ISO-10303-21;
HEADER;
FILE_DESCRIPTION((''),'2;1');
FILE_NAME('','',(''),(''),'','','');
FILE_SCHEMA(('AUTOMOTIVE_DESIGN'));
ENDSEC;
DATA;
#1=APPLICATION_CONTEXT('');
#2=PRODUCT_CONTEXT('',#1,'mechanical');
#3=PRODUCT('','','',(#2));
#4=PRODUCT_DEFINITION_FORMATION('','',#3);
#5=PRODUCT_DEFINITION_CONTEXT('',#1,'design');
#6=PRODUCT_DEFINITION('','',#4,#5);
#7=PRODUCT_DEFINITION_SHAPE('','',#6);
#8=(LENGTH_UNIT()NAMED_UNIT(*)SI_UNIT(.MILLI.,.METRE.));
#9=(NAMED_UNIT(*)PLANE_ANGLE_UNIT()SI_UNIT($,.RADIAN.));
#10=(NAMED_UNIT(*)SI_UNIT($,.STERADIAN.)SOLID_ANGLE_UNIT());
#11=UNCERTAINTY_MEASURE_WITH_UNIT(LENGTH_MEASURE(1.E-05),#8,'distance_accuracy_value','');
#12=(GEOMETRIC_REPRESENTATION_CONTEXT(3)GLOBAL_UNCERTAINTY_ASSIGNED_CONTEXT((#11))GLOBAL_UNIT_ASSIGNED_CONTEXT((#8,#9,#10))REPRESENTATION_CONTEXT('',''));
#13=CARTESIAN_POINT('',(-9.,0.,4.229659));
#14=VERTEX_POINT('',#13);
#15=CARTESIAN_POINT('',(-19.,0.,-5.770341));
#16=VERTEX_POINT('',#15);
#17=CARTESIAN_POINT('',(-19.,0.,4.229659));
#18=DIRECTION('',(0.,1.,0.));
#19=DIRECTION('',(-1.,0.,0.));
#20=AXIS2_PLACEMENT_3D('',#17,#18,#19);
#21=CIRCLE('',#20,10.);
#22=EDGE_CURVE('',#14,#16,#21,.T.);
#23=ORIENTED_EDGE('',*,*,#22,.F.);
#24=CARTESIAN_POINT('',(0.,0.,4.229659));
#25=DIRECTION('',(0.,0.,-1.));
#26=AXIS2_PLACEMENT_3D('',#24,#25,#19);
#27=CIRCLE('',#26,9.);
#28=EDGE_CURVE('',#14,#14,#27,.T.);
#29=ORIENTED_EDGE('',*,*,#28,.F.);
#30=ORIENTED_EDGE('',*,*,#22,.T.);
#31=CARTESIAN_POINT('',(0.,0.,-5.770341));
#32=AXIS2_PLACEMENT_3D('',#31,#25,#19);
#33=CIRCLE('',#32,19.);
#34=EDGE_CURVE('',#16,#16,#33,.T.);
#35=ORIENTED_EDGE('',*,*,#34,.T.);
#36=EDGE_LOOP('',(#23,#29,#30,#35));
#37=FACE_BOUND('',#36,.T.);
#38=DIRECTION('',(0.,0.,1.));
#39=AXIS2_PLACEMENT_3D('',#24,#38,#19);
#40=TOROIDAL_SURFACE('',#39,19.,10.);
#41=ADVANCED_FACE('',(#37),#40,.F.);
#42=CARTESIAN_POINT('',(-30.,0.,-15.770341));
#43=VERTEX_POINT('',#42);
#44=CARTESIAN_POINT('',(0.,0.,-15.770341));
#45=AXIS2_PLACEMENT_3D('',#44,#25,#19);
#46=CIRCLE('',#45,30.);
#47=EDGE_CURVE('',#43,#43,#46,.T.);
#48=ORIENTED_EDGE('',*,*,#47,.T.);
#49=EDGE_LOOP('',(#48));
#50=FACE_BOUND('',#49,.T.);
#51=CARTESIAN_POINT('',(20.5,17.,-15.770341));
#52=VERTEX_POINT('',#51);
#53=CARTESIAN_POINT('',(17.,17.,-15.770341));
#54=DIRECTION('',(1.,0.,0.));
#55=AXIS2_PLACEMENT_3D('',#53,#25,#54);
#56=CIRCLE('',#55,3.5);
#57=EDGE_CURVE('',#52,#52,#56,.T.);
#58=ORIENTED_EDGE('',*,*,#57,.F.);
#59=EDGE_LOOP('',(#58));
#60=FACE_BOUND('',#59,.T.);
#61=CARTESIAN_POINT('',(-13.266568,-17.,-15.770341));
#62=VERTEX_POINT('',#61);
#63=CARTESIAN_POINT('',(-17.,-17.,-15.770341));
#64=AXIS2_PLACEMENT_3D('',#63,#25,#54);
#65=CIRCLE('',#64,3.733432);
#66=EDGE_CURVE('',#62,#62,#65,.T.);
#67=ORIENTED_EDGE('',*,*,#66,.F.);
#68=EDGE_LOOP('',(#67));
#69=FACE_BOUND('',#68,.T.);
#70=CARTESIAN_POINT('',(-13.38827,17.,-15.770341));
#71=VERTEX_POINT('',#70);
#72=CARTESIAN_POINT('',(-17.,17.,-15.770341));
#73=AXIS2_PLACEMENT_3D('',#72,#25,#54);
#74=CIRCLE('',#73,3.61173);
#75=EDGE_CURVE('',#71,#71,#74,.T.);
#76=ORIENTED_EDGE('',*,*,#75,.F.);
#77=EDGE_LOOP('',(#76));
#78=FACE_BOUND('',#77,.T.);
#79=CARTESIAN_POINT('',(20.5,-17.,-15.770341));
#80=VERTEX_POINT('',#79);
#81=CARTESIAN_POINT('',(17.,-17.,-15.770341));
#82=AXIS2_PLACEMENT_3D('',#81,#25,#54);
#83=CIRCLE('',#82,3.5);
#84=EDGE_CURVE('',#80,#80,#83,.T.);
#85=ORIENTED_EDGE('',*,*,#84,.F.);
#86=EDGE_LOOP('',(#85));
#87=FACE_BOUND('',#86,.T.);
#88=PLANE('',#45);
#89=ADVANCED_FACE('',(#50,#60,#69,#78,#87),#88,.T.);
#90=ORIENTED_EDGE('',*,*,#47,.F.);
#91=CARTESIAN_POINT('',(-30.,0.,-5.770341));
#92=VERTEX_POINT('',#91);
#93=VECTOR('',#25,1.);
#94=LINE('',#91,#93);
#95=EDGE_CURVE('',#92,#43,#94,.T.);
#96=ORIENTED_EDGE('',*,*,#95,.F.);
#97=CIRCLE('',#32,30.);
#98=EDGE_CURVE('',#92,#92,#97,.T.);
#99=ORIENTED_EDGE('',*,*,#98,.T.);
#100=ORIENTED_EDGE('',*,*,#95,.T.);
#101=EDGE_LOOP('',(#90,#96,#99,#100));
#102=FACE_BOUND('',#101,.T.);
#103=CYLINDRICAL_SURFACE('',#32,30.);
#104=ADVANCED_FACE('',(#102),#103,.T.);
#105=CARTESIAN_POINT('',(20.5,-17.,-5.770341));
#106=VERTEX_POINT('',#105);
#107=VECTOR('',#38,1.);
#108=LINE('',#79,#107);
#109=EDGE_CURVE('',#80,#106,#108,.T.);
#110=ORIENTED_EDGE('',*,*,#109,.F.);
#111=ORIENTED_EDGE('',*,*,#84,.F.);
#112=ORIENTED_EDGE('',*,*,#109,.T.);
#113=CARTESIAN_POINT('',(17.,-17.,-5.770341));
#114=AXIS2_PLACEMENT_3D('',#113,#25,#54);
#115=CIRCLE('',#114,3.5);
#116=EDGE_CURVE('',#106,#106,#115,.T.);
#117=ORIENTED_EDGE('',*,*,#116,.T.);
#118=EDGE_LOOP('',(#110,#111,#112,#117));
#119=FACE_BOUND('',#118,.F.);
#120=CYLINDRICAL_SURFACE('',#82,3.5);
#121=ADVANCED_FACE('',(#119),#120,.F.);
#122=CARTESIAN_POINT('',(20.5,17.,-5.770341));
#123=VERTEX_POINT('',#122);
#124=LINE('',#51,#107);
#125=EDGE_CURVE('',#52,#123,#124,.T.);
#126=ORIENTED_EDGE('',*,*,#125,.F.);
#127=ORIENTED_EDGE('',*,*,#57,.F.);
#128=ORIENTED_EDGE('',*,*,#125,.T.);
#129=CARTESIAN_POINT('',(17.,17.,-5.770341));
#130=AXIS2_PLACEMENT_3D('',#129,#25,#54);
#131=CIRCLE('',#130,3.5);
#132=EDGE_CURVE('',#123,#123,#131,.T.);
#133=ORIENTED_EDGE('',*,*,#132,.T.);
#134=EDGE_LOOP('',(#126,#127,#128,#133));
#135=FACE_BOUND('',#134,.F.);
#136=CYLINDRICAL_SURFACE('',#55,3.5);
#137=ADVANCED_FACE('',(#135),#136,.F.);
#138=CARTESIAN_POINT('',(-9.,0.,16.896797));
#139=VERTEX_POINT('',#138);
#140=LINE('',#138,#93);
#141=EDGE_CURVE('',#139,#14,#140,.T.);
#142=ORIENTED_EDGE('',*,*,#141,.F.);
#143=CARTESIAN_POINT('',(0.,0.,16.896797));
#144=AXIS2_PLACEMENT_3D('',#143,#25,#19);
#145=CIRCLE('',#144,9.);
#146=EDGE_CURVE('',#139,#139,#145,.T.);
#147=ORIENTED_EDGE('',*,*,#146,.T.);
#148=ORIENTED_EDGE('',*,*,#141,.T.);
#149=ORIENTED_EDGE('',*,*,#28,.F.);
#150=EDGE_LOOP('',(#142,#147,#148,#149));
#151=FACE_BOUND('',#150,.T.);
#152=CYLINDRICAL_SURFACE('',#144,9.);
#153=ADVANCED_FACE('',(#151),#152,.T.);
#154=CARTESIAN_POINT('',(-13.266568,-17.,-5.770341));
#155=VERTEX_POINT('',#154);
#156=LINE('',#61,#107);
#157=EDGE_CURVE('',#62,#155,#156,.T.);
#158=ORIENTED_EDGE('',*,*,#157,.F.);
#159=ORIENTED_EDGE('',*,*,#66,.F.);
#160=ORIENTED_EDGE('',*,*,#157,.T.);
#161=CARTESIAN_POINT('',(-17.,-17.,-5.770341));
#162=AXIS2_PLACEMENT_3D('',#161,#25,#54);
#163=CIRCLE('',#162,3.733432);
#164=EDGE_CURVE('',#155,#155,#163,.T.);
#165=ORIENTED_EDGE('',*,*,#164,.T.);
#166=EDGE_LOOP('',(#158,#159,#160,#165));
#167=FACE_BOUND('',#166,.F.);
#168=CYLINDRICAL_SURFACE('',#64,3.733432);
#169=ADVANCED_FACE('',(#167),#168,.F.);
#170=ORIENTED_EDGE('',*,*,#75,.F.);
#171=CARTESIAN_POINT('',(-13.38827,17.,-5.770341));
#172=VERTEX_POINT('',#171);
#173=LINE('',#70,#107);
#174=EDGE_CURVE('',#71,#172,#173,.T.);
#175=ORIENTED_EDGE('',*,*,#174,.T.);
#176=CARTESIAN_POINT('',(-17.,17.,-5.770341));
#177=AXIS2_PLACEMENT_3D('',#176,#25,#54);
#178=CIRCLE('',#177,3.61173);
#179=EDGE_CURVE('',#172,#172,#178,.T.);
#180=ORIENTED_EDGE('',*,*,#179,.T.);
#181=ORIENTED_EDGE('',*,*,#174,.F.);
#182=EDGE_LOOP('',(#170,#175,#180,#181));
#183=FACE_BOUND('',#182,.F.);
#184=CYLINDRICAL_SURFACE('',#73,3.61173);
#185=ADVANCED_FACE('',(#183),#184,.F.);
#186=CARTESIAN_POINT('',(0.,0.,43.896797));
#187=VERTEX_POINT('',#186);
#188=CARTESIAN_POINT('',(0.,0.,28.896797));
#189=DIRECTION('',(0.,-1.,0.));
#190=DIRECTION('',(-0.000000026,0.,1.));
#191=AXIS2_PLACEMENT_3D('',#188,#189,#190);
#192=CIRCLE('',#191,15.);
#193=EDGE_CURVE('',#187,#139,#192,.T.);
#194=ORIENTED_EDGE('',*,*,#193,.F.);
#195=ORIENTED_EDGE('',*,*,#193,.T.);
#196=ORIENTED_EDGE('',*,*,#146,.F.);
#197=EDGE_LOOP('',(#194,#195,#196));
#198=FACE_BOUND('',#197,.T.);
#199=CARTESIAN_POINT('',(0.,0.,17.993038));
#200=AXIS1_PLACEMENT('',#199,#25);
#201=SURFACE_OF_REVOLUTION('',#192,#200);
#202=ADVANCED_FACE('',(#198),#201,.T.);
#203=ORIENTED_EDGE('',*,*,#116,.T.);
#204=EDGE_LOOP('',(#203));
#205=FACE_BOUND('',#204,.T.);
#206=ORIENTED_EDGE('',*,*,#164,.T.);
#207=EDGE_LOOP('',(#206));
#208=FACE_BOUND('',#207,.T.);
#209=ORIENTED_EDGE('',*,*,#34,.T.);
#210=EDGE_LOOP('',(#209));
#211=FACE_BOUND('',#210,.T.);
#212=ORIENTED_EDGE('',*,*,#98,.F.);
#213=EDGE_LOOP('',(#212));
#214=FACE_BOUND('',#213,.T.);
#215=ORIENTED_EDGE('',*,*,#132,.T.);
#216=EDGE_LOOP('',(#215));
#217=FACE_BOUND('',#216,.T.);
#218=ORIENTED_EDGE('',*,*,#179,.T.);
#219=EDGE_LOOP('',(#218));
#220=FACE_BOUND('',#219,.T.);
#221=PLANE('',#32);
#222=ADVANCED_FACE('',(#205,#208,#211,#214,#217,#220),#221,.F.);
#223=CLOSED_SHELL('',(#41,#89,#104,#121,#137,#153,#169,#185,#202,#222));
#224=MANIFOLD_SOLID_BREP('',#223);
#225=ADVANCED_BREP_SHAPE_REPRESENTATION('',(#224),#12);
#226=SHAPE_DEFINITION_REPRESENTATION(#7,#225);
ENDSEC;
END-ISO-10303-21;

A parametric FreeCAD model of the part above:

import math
import FreeCAD as App
import Part
import Sketcher

V = App.Vector
Q = App.Units.Quantity


def edges_at(feature, points):
    """Names of the edges that pass closest to the given points."""
    edges = feature.Shape.Edges
    near = lambda p: min(range(len(edges)), key=lambda i: edges[i].distToShape(Part.Vertex(*p))[0])
    return sorted({f"Edge{near(p) + 1}" for p in points})

doc = App.newDocument("Part")
body = doc.addObject("PartDesign::Body", "Body")

# Sketch on XZ plane
sketch1 = body.newObject("Sketcher::SketchObject", "Sketch")
sketch1.AttachmentSupport = (doc.getObject("XZ_Plane"), [""])
sketch1.MapMode = "FlatFace"
sketch1.addGeometry(Part.ArcOfCircle(Part.Circle(V(0, 28.896797, 0), V(0, 0, 1), 15), math.radians(90.000002), math.radians(233.130101)), False)
sketch1.addGeometry(Part.LineSegment(V(-9, 16.896797, 0), V(-9, -5.770341, 0)), False)
sketch1.addGeometry(Part.LineSegment(V(-9, -5.770341, 0), V(-30, -5.770341, 0)), False)
sketch1.addGeometry(Part.LineSegment(V(-30, -5.770341, 0), V(-30, -15.770341, 0)), False)
sketch1.addGeometry(Part.LineSegment(V(-30, -15.770341, 0), V(0, -15.770341, 0)), False)
sketch1.addGeometry(Part.LineSegment(V(0, -15.770341, 0), V(0, 43.896797, 0)), False)
sketch1.addConstraint(Sketcher.Constraint("Coincident", 0, 2, 1, 1))
sketch1.addConstraint(Sketcher.Constraint("Coincident", 1, 2, 2, 1))
sketch1.addConstraint(Sketcher.Constraint("Coincident", 2, 2, 3, 1))
sketch1.addConstraint(Sketcher.Constraint("Coincident", 3, 2, 4, 1))
sketch1.addConstraint(Sketcher.Constraint("Coincident", 4, 2, 5, 1))
sketch1.addConstraint(Sketcher.Constraint("Coincident", 5, 2, 0, 1))
sketch1.addConstraint(Sketcher.Constraint("Vertical", 1))
sketch1.addConstraint(Sketcher.Constraint("Horizontal", 2))
sketch1.addConstraint(Sketcher.Constraint("Vertical", 3))
sketch1.addConstraint(Sketcher.Constraint("Horizontal", 4))
sketch1.addConstraint(Sketcher.Constraint("Vertical", 5))
sketch1.addConstraint(Sketcher.Constraint("PointOnObject", 0, 3, -2))
sketch1.addConstraint(Sketcher.Constraint("PointOnObject", 4, 2, -2))
sketch1.addConstraint(Sketcher.Constraint("Radius", 0, Q("15 mm")))
sketch1.addConstraint(Sketcher.Constraint("DistanceX", 2, 2, 2, 1, Q("21 mm")))
sketch1.addConstraint(Sketcher.Constraint("DistanceX", 4, 1, 4, 2, Q("30 mm")))
sketch1.addConstraint(Sketcher.Constraint("DistanceY", 3, 2, 3, 1, Q("10 mm")))
sketch1.addConstraint(Sketcher.Constraint("DistanceY", 1, 2, 1, 1, Q("22.667138 mm")))
sketch1.addConstraint(Sketcher.Constraint("DistanceY", 1, 2, -1, 1, Q("5.770341 mm")))
revolution = body.newObject("PartDesign::Revolution", "Revolution")
revolution.Profile = sketch1
revolution.ReferenceAxis = (sketch1, ["V_Axis"])
revolution.Angle = 360

# Sketch on XY plane
sketch2 = body.newObject("Sketcher::SketchObject", "Sketch001")
sketch2.AttachmentSupport = (doc.getObject("XY_Plane"), [""])
sketch2.MapMode = "FlatFace"
sketch2.AttachmentOffset = App.Placement(V(0, 0, -15.770341), App.Rotation())
sketch2.addGeometry(Part.Circle(V(-17, -17, 0), V(0, 0, 1), 3.733432), False)
sketch2.addGeometry(Part.Circle(V(17, -17, 0), V(0, 0, 1), 3.5), False)
sketch2.addGeometry(Part.Circle(V(-17, 17, 0), V(0, 0, 1), 3.61173), False)
sketch2.addGeometry(Part.Circle(V(17, 17, 0), V(0, 0, 1), 3.5), False)
sketch2.addConstraint(Sketcher.Constraint("Equal", 1, 3))
sketch2.addConstraint(Sketcher.Constraint("Symmetric", 1, 3, 2, 3, -1, 1))
sketch2.addConstraint(Sketcher.Constraint("Symmetric", 0, 3, 3, 3, -1, 1))
sketch2.addConstraint(Sketcher.Constraint("Symmetric", 0, 3, 1, 3, -2))
sketch2.addConstraint(Sketcher.Constraint("Diameter", 1, Q("7 mm")))
sketch2.addConstraint(Sketcher.Constraint("DistanceX", 0, 3, -1, 1, Q("17 mm")))
sketch2.addConstraint(Sketcher.Constraint("DistanceY", 0, 3, -1, 1, Q("17 mm")))
sketch2.addConstraint(Sketcher.Constraint("Diameter", 2, Q("7.22346 mm")))
sketch2.addConstraint(Sketcher.Constraint("Diameter", 0, Q("7.466864 mm")))
pocket1 = body.newObject("PartDesign::Pocket", "Pocket")
pocket1.Profile = sketch2
pocket1.Length = 25
pocket1.Reversed = True
doc.recompute()

fillet = body.newObject("PartDesign::Fillet", "Fillet")
fillet.Base = (pocket1, edges_at(pocket1, [(9, 0, -5.77)]))
fillet.Radius = 10

doc.recompute()
